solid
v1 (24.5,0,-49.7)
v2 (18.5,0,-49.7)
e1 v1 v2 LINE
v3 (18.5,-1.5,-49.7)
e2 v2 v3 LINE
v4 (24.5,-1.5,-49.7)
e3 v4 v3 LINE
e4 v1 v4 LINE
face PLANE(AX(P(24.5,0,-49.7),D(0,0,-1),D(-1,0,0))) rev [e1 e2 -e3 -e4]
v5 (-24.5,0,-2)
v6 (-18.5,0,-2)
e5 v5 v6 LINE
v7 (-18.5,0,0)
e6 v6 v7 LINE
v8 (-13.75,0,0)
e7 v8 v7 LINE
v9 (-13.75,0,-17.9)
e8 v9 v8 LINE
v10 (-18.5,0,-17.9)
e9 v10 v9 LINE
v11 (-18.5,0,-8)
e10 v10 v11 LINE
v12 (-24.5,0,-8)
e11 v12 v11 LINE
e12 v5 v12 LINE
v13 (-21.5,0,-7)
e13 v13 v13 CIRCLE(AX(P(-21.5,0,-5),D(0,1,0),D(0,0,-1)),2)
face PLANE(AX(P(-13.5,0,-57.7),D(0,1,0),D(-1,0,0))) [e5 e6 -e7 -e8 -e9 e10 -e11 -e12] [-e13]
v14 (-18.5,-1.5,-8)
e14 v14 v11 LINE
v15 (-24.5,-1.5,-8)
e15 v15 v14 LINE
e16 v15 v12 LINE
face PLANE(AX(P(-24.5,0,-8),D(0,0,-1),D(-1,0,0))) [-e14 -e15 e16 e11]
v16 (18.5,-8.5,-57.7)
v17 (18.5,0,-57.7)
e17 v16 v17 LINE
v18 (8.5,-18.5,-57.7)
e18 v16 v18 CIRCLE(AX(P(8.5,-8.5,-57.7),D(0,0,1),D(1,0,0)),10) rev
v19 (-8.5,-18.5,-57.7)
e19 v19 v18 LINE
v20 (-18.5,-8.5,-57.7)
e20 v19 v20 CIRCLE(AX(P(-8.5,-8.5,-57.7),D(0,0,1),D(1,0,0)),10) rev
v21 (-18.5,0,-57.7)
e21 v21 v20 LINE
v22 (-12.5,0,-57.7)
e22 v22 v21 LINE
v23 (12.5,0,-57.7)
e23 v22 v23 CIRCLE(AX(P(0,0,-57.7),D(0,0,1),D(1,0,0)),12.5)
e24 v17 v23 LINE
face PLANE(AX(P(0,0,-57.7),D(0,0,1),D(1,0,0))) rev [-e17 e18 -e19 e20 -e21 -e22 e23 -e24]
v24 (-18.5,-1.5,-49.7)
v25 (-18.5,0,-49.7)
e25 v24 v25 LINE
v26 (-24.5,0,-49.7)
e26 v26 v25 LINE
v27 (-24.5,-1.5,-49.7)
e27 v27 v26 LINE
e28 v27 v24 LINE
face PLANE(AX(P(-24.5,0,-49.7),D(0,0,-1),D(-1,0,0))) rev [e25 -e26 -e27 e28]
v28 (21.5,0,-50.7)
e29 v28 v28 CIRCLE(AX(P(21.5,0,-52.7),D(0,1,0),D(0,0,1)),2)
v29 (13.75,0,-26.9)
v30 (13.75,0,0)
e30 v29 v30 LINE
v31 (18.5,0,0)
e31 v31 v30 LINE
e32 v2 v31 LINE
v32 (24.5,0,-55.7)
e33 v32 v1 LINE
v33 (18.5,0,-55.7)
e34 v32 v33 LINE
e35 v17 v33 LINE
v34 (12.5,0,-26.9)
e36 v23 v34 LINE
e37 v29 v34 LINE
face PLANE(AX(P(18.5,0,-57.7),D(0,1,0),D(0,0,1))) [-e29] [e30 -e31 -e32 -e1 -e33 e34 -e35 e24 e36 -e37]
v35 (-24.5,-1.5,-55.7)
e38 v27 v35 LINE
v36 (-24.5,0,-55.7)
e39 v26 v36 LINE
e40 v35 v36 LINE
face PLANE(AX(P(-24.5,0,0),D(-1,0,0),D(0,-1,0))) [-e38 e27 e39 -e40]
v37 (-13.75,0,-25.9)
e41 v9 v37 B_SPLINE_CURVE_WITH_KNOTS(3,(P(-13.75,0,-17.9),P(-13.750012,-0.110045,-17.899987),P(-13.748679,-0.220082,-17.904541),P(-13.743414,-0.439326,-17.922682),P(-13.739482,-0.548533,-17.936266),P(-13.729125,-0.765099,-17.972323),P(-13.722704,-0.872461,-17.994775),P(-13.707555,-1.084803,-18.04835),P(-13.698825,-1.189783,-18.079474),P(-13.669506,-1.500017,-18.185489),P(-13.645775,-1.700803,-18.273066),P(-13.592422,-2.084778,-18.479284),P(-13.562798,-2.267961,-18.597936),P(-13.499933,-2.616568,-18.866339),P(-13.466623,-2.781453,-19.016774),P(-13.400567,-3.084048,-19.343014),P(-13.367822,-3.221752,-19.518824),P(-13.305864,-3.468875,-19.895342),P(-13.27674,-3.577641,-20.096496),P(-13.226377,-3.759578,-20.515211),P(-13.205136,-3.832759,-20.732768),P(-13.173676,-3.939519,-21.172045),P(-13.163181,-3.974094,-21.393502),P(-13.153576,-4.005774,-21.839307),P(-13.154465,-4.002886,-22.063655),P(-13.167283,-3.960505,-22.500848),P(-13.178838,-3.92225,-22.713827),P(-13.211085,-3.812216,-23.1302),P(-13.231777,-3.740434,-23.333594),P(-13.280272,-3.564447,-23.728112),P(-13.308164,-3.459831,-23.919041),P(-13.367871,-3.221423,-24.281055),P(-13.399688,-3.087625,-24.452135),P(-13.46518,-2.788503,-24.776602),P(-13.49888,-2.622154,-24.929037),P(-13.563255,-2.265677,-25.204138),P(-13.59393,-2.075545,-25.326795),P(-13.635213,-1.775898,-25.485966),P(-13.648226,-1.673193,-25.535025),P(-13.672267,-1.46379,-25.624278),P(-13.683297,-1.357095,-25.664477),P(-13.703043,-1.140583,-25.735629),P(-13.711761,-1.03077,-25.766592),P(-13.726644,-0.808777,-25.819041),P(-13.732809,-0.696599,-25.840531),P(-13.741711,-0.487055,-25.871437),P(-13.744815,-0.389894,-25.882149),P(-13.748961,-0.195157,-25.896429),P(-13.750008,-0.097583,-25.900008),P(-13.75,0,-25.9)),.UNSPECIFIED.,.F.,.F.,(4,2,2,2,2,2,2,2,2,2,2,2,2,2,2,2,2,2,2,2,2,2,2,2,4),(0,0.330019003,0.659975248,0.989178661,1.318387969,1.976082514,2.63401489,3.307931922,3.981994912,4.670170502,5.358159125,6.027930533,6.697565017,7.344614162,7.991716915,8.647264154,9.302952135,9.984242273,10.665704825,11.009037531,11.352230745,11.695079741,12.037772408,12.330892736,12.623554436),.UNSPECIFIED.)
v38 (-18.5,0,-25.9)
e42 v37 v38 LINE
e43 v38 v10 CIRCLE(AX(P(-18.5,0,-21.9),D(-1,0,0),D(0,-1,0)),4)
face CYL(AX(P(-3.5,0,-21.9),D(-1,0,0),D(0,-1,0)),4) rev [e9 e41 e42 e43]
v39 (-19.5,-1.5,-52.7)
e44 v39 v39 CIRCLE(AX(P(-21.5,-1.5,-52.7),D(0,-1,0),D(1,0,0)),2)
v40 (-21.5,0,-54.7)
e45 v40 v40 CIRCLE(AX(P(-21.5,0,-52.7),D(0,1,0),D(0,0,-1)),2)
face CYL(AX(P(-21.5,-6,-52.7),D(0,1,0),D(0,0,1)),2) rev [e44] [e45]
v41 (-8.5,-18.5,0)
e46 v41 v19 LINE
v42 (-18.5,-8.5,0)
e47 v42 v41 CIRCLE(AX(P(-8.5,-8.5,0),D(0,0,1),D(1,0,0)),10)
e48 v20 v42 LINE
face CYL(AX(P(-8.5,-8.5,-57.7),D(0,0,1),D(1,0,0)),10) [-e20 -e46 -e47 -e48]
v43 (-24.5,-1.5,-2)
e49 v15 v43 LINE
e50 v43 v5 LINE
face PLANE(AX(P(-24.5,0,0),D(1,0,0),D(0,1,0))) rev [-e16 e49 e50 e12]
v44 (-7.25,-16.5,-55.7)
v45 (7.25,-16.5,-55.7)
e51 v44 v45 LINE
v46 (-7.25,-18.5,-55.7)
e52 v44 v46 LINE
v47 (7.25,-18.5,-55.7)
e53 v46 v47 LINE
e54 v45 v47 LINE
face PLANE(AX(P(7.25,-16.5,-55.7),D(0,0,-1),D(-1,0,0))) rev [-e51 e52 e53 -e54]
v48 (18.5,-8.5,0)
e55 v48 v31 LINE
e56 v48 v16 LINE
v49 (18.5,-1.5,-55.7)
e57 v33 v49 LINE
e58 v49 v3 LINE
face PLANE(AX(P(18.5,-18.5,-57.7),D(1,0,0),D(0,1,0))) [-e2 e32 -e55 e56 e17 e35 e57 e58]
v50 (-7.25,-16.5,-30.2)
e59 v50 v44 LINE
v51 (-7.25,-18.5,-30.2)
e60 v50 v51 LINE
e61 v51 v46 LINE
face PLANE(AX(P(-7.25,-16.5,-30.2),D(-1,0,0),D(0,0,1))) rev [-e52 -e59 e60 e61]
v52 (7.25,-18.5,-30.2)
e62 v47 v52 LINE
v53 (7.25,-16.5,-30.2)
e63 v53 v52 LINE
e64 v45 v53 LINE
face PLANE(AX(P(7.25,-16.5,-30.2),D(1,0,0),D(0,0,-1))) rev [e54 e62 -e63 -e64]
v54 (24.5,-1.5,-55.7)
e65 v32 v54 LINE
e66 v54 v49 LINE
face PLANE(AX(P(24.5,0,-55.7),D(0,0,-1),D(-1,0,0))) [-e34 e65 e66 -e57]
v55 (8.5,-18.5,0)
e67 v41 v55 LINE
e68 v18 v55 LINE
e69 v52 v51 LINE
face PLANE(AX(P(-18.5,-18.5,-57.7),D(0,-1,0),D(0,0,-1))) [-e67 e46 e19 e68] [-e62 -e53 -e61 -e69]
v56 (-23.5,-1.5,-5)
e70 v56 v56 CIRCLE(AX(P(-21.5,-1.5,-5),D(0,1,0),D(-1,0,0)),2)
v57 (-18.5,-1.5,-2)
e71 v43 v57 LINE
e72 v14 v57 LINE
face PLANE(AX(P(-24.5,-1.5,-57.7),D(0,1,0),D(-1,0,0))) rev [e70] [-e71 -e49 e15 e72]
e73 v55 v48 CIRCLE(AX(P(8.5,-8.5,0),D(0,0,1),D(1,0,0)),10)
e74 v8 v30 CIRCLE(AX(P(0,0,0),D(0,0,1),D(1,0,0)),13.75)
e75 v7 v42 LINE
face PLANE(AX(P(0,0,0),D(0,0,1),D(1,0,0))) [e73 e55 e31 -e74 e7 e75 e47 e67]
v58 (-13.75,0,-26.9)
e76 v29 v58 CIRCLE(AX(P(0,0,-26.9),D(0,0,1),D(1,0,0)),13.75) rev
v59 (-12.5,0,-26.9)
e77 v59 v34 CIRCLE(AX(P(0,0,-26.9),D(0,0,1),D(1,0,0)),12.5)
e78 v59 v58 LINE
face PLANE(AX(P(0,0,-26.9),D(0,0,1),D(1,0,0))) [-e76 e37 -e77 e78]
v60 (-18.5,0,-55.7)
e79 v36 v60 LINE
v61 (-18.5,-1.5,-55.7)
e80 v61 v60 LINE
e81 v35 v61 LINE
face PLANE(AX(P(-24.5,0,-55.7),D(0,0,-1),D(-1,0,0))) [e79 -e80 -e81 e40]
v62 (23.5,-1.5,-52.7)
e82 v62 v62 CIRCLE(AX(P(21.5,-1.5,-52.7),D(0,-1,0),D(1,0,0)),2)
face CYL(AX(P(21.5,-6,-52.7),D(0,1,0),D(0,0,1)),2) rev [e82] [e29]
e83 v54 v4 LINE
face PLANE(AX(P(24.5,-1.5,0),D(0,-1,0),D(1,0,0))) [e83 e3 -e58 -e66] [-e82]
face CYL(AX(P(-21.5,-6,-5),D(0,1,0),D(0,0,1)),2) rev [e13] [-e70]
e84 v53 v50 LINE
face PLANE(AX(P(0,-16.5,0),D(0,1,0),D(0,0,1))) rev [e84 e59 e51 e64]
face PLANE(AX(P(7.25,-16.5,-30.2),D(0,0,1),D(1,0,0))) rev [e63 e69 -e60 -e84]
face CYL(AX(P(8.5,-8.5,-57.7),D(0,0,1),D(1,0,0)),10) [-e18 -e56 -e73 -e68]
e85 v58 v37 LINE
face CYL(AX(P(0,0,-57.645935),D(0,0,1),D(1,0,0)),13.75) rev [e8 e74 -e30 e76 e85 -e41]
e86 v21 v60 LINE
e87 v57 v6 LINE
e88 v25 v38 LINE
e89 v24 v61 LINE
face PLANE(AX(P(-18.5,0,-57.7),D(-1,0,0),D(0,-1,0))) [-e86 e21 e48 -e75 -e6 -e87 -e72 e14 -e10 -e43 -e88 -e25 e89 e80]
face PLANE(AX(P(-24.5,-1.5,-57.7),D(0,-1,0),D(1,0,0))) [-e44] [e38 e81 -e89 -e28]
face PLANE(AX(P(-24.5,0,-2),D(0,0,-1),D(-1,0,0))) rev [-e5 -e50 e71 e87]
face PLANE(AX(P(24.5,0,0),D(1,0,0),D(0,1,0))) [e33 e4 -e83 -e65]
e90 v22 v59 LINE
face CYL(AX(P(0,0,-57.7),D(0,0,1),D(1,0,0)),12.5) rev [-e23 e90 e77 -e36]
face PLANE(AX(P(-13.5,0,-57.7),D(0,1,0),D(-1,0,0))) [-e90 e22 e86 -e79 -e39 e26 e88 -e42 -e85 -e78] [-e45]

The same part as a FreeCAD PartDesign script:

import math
import FreeCAD as App
import Part
import Sketcher
Q = App.Units.Quantity


def edges_at(feature, points):
    """Names of the edges that pass closest to the given points."""
    edges = feature.Shape.Edges
    near = lambda p: min(range(len(edges)), key=lambda i: edges[i].distToShape(Part.Vertex(*p))[0])
    return sorted({f"Edge{near(p) + 1}" for p in points})

doc = App.newDocument("Part")
body = doc.addObject("PartDesign::Body", "Body")

# Sketch on XY plane
sketch1 = body.newObject("Sketcher::SketchObject", "Sketch")
sketch1.AttachmentSupport = (doc.getObject("XY_Plane"), [""])
sketch1.MapMode = "FlatFace"
sketch1.addGeometry([
    Part.LineSegment(App.Vector(-14, 0, 0), App.Vector(-18, 0, 0)),  # 0
    Part.LineSegment(App.Vector(-18, 0, 0), App.Vector(-18, -18, 0)),  # 1
    Part.LineSegment(App.Vector(-18, -18, 0), App.Vector(18, -18, 0)),  # 2
    Part.LineSegment(App.Vector(18, -18, 0), App.Vector(18, 0, 0)),  # 3
    Part.LineSegment(App.Vector(18, 0, 0), App.Vector(14, 0, 0)),  # 4
    Part.ArcOfCircle(Part.Circle(App.Vector(0, 0, 0), App.Vector(0, 0, 1), 14), math.radians(180), math.radians(360)),  # 5
], False)
sketch1.addConstraint([
    Sketcher.Constraint("Coincident", 0, 2, 1, 1),
    Sketcher.Constraint("Coincident", 1, 2, 2, 1),
    Sketcher.Constraint("Coincident", 2, 2, 3, 1),
    Sketcher.Constraint("Coincident", 3, 2, 4, 1),
    Sketcher.Constraint("Coincident", 4, 2, 5, 2),
    Sketcher.Constraint("Coincident", 5, 1, 0, 1),
    Sketcher.Constraint("Horizontal", 0),
    Sketcher.Constraint("Vertical", 1),
    Sketcher.Constraint("Horizontal", 2),
    Sketcher.Constraint("Vertical", 3),
    Sketcher.Constraint("Horizontal", 4),
    Sketcher.Constraint("Coincident", 5, 3, -1, 1),
    Sketcher.Constraint("Symmetric", 0, 2, 3, 2, -1, 1),
    Sketcher.Constraint("PointOnObject", 0, 2, -1),
    Sketcher.Constraint("Radius", 5, Q("13.5 mm")),
    Sketcher.Constraint("DistanceX", 0, 2, 0, 1, Q("5 mm")),
    Sketcher.Constraint("DistanceY", 1, 2, 1, 1, Q("18.5 mm")),
])
pad1 = body.newObject("PartDesign::Pad", "Pad")
pad1.Profile = sketch1
pad1.Length = 57.7
pad1.Reversed = True

# Sketch on XY plane
sketch2 = body.newObject("Sketcher::SketchObject", "Sketch001")
sketch2.AttachmentSupport = (doc.getObject("XY_Plane"), [""])
sketch2.MapMode = "FlatFace"
sketch2.AttachmentOffset = App.Placement(App.Vector(0, 0, -26.9), App.Rotation())
sketch2.addGeometry([
    Part.LineSegment(App.Vector(-11.5, 0, 0), App.Vector(-13.5, 0, 0)),
    Part.ArcOfCircle(Part.Circle(App.Vector(0, 0, 0), App.Vector(0, 0, 1), 13.5), math.radians(180), math.radians(360)),
    Part.LineSegment(App.Vector(13.5, 0, 0), App.Vector(11.5, 0, 0)),
    Part.ArcOfCircle(Part.Circle(App.Vector(0, 0, 0), App.Vector(0, 0, 1), 11.5), math.radians(180), math.radians(360)),
], False)
sketch2.addConstraint([
    Sketcher.Constraint("Coincident", 0, 2, 1, 1),
    Sketcher.Constraint("Coincident", 1, 2, 2, 1),
    Sketcher.Constraint("Coincident", 2, 2, 3, 2),
    Sketcher.Constraint("Coincident", 3, 1, 0, 1),
    Sketcher.Constraint("Horizontal", 0),
    Sketcher.Constraint("Horizontal", 2),
    Sketcher.Constraint("Coincident", 1, 3, -1, 1),
    Sketcher.Constraint("Coincident", 3, 3, -1, 1),
    Sketcher.Constraint("PointOnObject", 0, 2, -1),
    Sketcher.Constraint("PointOnObject", 1, 2, -1),
    Sketcher.Constraint("Radius", 1, Q("13.5 mm")),
    Sketcher.Constraint("Radius", 3, Q("11.5 mm")),
])
pad2 = body.newObject("PartDesign::Pad", "Pad001")
pad2.Profile = sketch2
pad2.Length = 30.8
pad2.Reversed = True

# Sketch on YZ plane
sketch3 = body.newObject("Sketcher::SketchObject", "Sketch002")
sketch3.AttachmentSupport = (doc.getObject("YZ_Plane"), [""])
sketch3.MapMode = "FlatFace"
sketch3.AttachmentOffset = App.Placement(App.Vector(0, 0, -18.5), App.Rotation())
sketch3.addGeometry(Part.Circle(App.Vector(0, -21.9, 0), App.Vector(0, 0, 1), 4), False)
sketch3.addConstraint([
    Sketcher.Constraint("PointOnObject", 0, 3, -2),
    Sketcher.Constraint("Diameter", 0, Q("8 mm")),
    Sketcher.Constraint("DistanceY", 0, 3, -1, 1, Q("21.9 mm")),
])
pocket1 = body.newObject("PartDesign::Pocket", "Pocket")
pocket1.Profile = sketch3
pocket1.Length = 15
pocket1.Reversed = True
doc.recompute()

fillet = body.newObject("PartDesign::Fillet", "Fillet")
fillet.Base = (pocket1, edges_at(pocket1, [(18.5, -18.5, -28.85), (-18.5, -18.5, -28.85)]))
fillet.Radius = 10

# Sketch on YZ plane
sketch4 = body.newObject("Sketcher::SketchObject", "Sketch003")
sketch4.AttachmentSupport = (doc.getObject("YZ_Plane"), [""])
sketch4.MapMode = "FlatFace"
sketch4.AttachmentOffset = App.Placement(App.Vector(0, 0, 18.5), App.Rotation())
sketch4.addGeometry([
    Part.LineSegment(App.Vector(0, -49.7, 0), App.Vector(-1.5, -49.7, 0)),  # 0
    Part.LineSegment(App.Vector(-1.5, -49.7, 0), App.Vector(-1.5, -55.7, 0)),  # 1
    Part.LineSegment(App.Vector(-1.5, -55.7, 0), App.Vector(0, -55.7, 0)),  # 2
    Part.LineSegment(App.Vector(0, -55.7, 0), App.Vector(0, -49.7, 0)),  # 3
    Part.LineSegment(App.Vector(0, -2, 0), App.Vector(-1.5, -2, 0)),  # 4
    Part.LineSegment(App.Vector(-1.5, -2, 0), App.Vector(-1.5, -8, 0)),  # 5
    Part.LineSegment(App.Vector(-1.5, -8, 0), App.Vector(0, -8, 0)),  # 6
    Part.LineSegment(App.Vector(0, -8, 0), App.Vector(0, -2, 0)),  # 7
], False)
sketch4.addConstraint([
    Sketcher.Constraint("Coincident", 0, 2, 1, 1),
    Sketcher.Constraint("Coincident", 1, 2, 2, 1),
    Sketcher.Constraint("Coincident", 2, 2, 3, 1),
    Sketcher.Constraint("Coincident", 3, 2, 0, 1),
    Sketcher.Constraint("Coincident", 4, 2, 5, 1),
    Sketcher.Constraint("Coincident", 5, 2, 6, 1),
    Sketcher.Constraint("Coincident", 6, 2, 7, 1),
    Sketcher.Constraint("Coincident", 7, 2, 4, 1),
    Sketcher.Constraint("Horizontal", 0),
    Sketcher.Constraint("Vertical", 1),
    Sketcher.Constraint("Horizontal", 2),
    Sketcher.Constraint("Vertical", 3),
    Sketcher.Constraint("Horizontal", 4),
    Sketcher.Constraint("Vertical", 5),
    Sketcher.Constraint("Horizontal", 6),
    Sketcher.Constraint("Vertical", 7),
    Sketcher.Constraint("PointOnObject", 2, 2, -2),
    Sketcher.Constraint("PointOnObject", 6, 2, -2),
    Sketcher.Constraint("Vertical", 1, 2, 4, 2),
    Sketcher.Constraint("Equal", 3, 5),
    Sketcher.Constraint("DistanceY", 1, 2, 1, 1, Q("6 mm")),
    Sketcher.Constraint("DistanceX", 0, 2, 0, 1, Q("1.5 mm")),
    Sketcher.Constraint("DistanceY", 4, 2, -1, 1, Q("2 mm")),
    Sketcher.Constraint("DistanceY", 0, 2, -1, 1, Q("49.7 mm")),
])
pad3 = body.newObject("PartDesign::Pad", "Pad002")
pad3.Profile = sketch4
pad3.Length = 6

# Sketch on YZ plane
sketch5 = body.newObject("Sketcher::SketchObject", "Sketch004")
sketch5.AttachmentSupport = (doc.getObject("YZ_Plane"), [""])
sketch5.MapMode = "FlatFace"
sketch5.AttachmentOffset = App.Placement(App.Vector(0, 0, -18.5), App.Rotation())
sketch5.addGeometry([
    Part.LineSegment(App.Vector(0, -49.7, 0), App.Vector(-1.5, -49.7, 0)),  # 0
    Part.LineSegment(App.Vector(-1.5, -49.7, 0), App.Vector(-1.5, -55.7, 0)),  # 1
    Part.LineSegment(App.Vector(-1.5, -55.7, 0), App.Vector(0, -55.7, 0)),  # 2
    Part.LineSegment(App.Vector(0, -55.7, 0), App.Vector(0, -49.7, 0)),  # 3
    Part.LineSegment(App.Vector(0, -2, 0), App.Vector(-1.5, -2, 0)),  # 4
    Part.LineSegment(App.Vector(-1.5, -2, 0), App.Vector(-1.5, -8, 0)),  # 5
    Part.LineSegment(App.Vector(-1.5, -8, 0), App.Vector(0, -8, 0)),  # 6
    Part.LineSegment(App.Vector(0, -8, 0), App.Vector(0, -2, 0)),  # 7
], False)
sketch5.addConstraint([
    Sketcher.Constraint("Coincident", 0, 2, 1, 1),
    Sketcher.Constraint("Coincident", 1, 2, 2, 1),
    Sketcher.Constraint("Coincident", 2, 2, 3, 1),
    Sketcher.Constraint("Coincident", 3, 2, 0, 1),
    Sketcher.Constraint("Coincident", 4, 2, 5, 1),
    Sketcher.Constraint("Coincident", 5, 2, 6, 1),
    Sketcher.Constraint("Coincident", 6, 2, 7, 1),
    Sketcher.Constraint("Coincident", 7, 2, 4, 1),
    Sketcher.Constraint("Horizontal", 0),
    Sketcher.Constraint("Vertical", 1),
    Sketcher.Constraint("Horizontal", 2),
    Sketcher.Constraint("Vertical", 3),
    Sketcher.Constraint("Horizontal", 4),
    Sketcher.Constraint("Vertical", 5),
    Sketcher.Constraint("Horizontal", 6),
    Sketcher.Constraint("Vertical", 7),
    Sketcher.Constraint("PointOnObject", 2, 2, -2),
    Sketcher.Constraint("PointOnObject", 6, 2, -2),
    Sketcher.Constraint("Vertical", 1, 2, 4, 2),
    Sketcher.Constraint("Equal", 3, 5),
    Sketcher.Constraint("DistanceY", 1, 2, 1, 1, Q("6 mm")),
    Sketcher.Constraint("DistanceX", 0, 2, 0, 1, Q("1.5 mm")),
    Sketcher.Constraint("DistanceY", 4, 2, -1, 1, Q("2 mm")),
    Sketcher.Constraint("DistanceY", 0, 2, -1, 1, Q("49.7 mm")),
])
pad4 = body.newObject("PartDesign::Pad", "Pad003")
pad4.Profile = sketch5
pad4.Length = 6
pad4.Reversed = True

# Sketch on XZ plane
sketch6 = body.newObject("Sketcher::SketchObject", "Sketch005")
sketch6.AttachmentSupport = (doc.getObject("XZ_Plane"), [""])
sketch6.MapMode = "FlatFace"
sketch6.addGeometry([
    Part.Circle(App.Vector(21.5, -5, 0), App.Vector(0, 0, 1), 2),
    Part.Circle(App.Vector(21.5, -52.7, 0), App.Vector(0, 0, 1), 2),
    Part.Circle(App.Vector(-21.5, -5, 0), App.Vector(0, 0, 1), 2),
    Part.Circle(App.Vector(-21.5, -52.7, 0), App.Vector(0, 0, 1), 2),
], False)
sketch6.addConstraint([
    Sketcher.Constraint("Equal", 0, 1),
    Sketcher.Constraint("Equal", 1, 2),
    Sketcher.Constraint("Equal", 2, 3),
    Sketcher.Constraint("Symmetric", 0, 3, 2, 3, -2),
    Sketcher.Constraint("Symmetric", 1, 3, 3, 3, -2),
    Sketcher.Constraint("Vertical", 0, 3, 1, 3),
    Sketcher.Constraint("Diameter", 0, Q("4 mm")),
    Sketcher.Constraint("DistanceY", 0, 3, -1, 1, Q("5 mm")),
    Sketcher.Constraint("DistanceX", 2, 3, 0, 3, Q("43 mm")),
    Sketcher.Constraint("DistanceY", 1, 3, -1, 1, Q("52.7 mm")),
])
pocket2 = body.newObject("PartDesign::Pocket", "Pocket001")
pocket2.Profile = sketch6
pocket2.Length = 6
pocket2.Reversed = True

# Sketch on XZ plane
sketch7 = body.newObject("Sketcher::SketchObject", "Sketch006")
sketch7.AttachmentSupport = (doc.getObject("XZ_Plane"), [""])
sketch7.MapMode = "FlatFace"
sketch7.AttachmentOffset = App.Placement(App.Vector(0, 0, 18.5), App.Rotation())
sketch7.addGeometry([
    Part.LineSegment(App.Vector(-7, -30, 0), App.Vector(-7, -56, 0)),
    Part.LineSegment(App.Vector(-7, -56, 0), App.Vector(7, -56, 0)),
    Part.LineSegment(App.Vector(7, -56, 0), App.Vector(7, -30, 0)),
    Part.LineSegment(App.Vector(7, -30, 0), App.Vector(-7, -30, 0)),
], False)
sketch7.addConstraint([
    Sketcher.Constraint("Coincident", 0, 2, 1, 1),
    Sketcher.Constraint("Coincident", 1, 2, 2, 1),
    Sketcher.Constraint("Coincident", 2, 2, 3, 1),
    Sketcher.Constraint("Coincident", 3, 2, 0, 1),
    Sketcher.Constraint("Vertical", 0),
    Sketcher.Constraint("Horizontal", 1),
    Sketcher.Constraint("Vertical", 2),
    Sketcher.Constraint("Horizontal", 3),
    Sketcher.Constraint("DistanceX", 1, 1, 1, 2, Q("14.5 mm")),
    Sketcher.Constraint("DistanceY", 0, 2, 0, 1, Q("25.5 mm")),
    Sketcher.Constraint("DistanceY", 0, 2, -1, 1, Q("55.7 mm")),
    Sketcher.Constraint("DistanceX", 0, 2, -1, 1, Q("7.25 mm")),
])
pocket3 = body.newObject("PartDesign::Pocket", "Pocket002")
pocket3.Profile = sketch7
pocket3.Length = 2

# Sketch on XY plane
sketch8 = body.newObject("Sketcher::SketchObject", "Sketch007")
sketch8.AttachmentSupport = (doc.getObject("XY_Plane"), [""])
sketch8.MapMode = "FlatFace"
sketch8.AttachmentOffset = App.Placement(App.Vector(0, 0, -26.9), App.Rotation())
sketch8.addGeometry([
    Part.LineSegment(App.Vector(-13.5, 0, 0), App.Vector(-13.75, 0, 0)),
    Part.ArcOfCircle(Part.Circle(App.Vector(0, 0, 0), App.Vector(0, 0, 1), 13.75), math.radians(180), math.radians(360)),
    Part.LineSegment(App.Vector(13.75, 0, 0), App.Vector(13.5, 0, 0)),
    Part.ArcOfCircle(Part.Circle(App.Vector(0, 0, 0), App.Vector(0, 0, 1), 13.5), math.radians(180), math.radians(360)),
], False)
sketch8.addConstraint([
    Sketcher.Constraint("Coincident", 0, 2, 1, 1),
    Sketcher.Constraint("Coincident", 1, 2, 2, 1),
    Sketcher.Constraint("Coincident", 2, 2, 3, 2),
    Sketcher.Constraint("Coincident", 3, 1, 0, 1),
    Sketcher.Constraint("Horizontal", 0),
    Sketcher.Constraint("Horizontal", 2),
    Sketcher.Constraint("Coincident", 1, 3, -1, 1),
    Sketcher.Constraint("Coincident", 3, 3, -1, 1),
    Sketcher.Constraint("PointOnObject", 0, 2, -1),
    Sketcher.Constraint("PointOnObject", 1, 2, -1),
    Sketcher.Constraint("Radius", 3, Q("13.5 mm")),
    Sketcher.Constraint("Radius", 1, Q("13.75 mm")),
])
pocket4 = body.newObject("PartDesign::Pocket", "Pocket003")
pocket4.Profile = sketch8
pocket4.Length = 26.9
pocket4.Reversed = True

# Sketch on XY plane
sketch9 = body.newObject("Sketcher::SketchObject", "Sketch008")
sketch9.AttachmentSupport = (doc.getObject("XY_Plane"), [""])
sketch9.MapMode = "FlatFace"
sketch9.AttachmentOffset = App.Placement(App.Vector(0, 0, -26.9), App.Rotation())
sketch9.addGeometry([
    Part.ArcOfCircle(Part.Circle(App.Vector(0, 0, 0), App.Vector(0, 0, 1), 11.5), math.radians(180), math.radians(360)),
    Part.LineSegment(App.Vector(-11.5, 0, 0), App.Vector(-12.5, 0, 0)),
    Part.ArcOfCircle(Part.Circle(App.Vector(0, 0, 0), App.Vector(0, 0, 1), 12.5), math.radians(180), math.radians(360)),
    Part.LineSegment(App.Vector(12.5, 0, 0), App.Vector(11.5, 0, 0)),
], False)
sketch9.addConstraint([
    Sketcher.Constraint("Coincident", 0, 1, 1, 1),
    Sketcher.Constraint("Coincident", 1, 2, 2, 1),
    Sketcher.Constraint("Coincident", 2, 2, 3, 1),
    Sketcher.Constraint("Coincident", 3, 2, 0, 2),
    Sketcher.Constraint("Horizontal", 1),
    Sketcher.Constraint("Horizontal", 3),
    Sketcher.Constraint("Coincident", 0, 3, -1, 1),
    Sketcher.Constraint("Coincident", 2, 3, -1, 1),
    Sketcher.Constraint("PointOnObject", 0, 1, -1),
    Sketcher.Constraint("PointOnObject", 2, 2, -1),
    Sketcher.Constraint("Radius", 0, Q("11.5 mm")),
    Sketcher.Constraint("Radius", 2, Q("12.5 mm")),
])
pocket5 = body.newObject("PartDesign::Pocket", "Pocket004")
pocket5.Profile = sketch9
pocket5.Type = "ThroughAll"

# Sketch on XZ plane
sketch10 = body.newObject("Sketcher::SketchObject", "Sketch009")
sketch10.AttachmentSupport = (doc.getObject("XZ_Plane"), [""])
sketch10.MapMode = "FlatFace"
sketch10.AttachmentOffset = App.Placement(App.Vector(0, 0, 1.5), App.Rotation())
sketch10.addGeometry([
    Part.LineSegment(App.Vector(18, -2, 0), App.Vector(18, -8, 0)),
    Part.LineSegment(App.Vector(18, -8, 0), App.Vector(24, -8, 0)),
    Part.LineSegment(App.Vector(24, -8, 0), App.Vector(24, -2, 0)),
    Part.LineSegment(App.Vector(24, -2, 0), App.Vector(18, -2, 0)),
], False)
sketch10.addConstraint([
    Sketcher.Constraint("Coincident", 0, 2, 1, 1),
    Sketcher.Constraint("Coincident", 1, 2, 2, 1),
    Sketcher.Constraint("Coincident", 2, 2, 3, 1),
    Sketcher.Constraint("Coincident", 3, 2, 0, 1),
    Sketcher.Constraint("Vertical", 0),
    Sketcher.Constraint("Horizontal", 1),
    Sketcher.Constraint("Vertical", 2),
    Sketcher.Constraint("Horizontal", 3),
    Sketcher.Constraint("Equal", 3, 0),
    Sketcher.Constraint("DistanceX", 1, 1, 1, 2, Q("6 mm")),
    Sketcher.Constraint("DistanceY", 0, 2, -1, 1, Q("8 mm")),
    Sketcher.Constraint("DistanceX", -1, 1, 0, 2, Q("18.5 mm")),
])
pocket6 = body.newObject("PartDesign::Pocket", "Pocket005")
pocket6.Profile = sketch10
pocket6.Length = 10

doc.recompute()
